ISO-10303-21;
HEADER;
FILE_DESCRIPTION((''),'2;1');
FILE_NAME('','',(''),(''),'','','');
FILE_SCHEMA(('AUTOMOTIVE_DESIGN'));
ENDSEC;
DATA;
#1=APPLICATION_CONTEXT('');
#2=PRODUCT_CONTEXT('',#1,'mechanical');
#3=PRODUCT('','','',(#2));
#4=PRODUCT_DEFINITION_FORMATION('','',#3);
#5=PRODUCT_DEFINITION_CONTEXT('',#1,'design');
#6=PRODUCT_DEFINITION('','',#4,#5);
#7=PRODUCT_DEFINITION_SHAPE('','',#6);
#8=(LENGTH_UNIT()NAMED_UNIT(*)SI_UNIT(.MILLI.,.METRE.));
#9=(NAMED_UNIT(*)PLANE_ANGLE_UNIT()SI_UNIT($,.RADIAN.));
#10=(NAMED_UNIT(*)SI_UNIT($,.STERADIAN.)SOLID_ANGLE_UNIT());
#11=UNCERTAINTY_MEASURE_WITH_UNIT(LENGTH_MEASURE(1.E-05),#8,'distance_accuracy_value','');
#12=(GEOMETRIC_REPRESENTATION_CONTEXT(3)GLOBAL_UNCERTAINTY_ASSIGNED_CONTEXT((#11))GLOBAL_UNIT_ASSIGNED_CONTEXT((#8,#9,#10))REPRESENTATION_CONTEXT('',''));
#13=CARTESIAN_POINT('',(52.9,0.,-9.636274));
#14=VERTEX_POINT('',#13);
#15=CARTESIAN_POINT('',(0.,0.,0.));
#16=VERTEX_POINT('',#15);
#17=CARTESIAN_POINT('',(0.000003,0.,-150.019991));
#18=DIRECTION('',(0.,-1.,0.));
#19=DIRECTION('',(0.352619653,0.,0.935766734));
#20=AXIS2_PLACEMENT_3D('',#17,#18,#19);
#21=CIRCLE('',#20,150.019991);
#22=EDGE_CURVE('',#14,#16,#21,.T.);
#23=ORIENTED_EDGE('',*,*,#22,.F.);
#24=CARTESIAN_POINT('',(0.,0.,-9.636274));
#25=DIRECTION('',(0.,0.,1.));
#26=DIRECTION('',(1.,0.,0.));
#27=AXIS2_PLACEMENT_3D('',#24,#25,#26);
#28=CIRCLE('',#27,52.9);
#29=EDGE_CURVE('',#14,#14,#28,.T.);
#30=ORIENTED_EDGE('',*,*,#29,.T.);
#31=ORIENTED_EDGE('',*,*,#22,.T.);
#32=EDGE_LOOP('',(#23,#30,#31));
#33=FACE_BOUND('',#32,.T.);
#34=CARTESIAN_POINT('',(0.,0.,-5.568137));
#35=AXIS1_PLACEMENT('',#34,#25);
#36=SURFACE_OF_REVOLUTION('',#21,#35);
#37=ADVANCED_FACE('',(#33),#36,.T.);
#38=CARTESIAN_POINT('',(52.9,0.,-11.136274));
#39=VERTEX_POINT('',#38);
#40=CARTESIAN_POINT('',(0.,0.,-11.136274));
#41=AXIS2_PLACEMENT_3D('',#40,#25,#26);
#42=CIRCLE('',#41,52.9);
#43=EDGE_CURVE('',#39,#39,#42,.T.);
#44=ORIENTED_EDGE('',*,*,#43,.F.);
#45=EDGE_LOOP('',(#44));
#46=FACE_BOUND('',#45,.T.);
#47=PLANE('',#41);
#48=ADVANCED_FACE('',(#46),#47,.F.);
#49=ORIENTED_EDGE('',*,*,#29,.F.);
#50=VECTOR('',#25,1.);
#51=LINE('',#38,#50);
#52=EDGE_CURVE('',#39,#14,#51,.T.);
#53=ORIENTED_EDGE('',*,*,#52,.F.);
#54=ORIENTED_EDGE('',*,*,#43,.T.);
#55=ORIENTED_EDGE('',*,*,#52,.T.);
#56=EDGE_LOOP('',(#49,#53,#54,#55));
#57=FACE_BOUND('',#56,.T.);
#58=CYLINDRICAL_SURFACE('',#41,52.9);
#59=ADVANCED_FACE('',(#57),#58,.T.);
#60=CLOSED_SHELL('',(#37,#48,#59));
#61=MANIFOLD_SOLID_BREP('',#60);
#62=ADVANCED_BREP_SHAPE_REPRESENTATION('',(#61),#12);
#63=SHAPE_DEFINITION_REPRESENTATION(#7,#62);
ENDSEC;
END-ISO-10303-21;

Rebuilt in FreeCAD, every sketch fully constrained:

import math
import FreeCAD as App
import Part
import Sketcher

doc = App.newDocument("Part")
params = doc.addObject("Spreadsheet::Sheet", "Params")
for row, (alias, value) in enumerate([
    ("sketch1_width", "52.9 mm"),
    ("sketch1_height", "1.5 mm"),
    ("revolution_angle", "360 deg"),
], start=1):
    params.set(f"A{row}", alias)
    params.set(f"B{row}", "=" + value)
    params.setAlias(f"B{row}", alias)

body = doc.addObject("PartDesign::Body", "Body")

# Sketch on XZ plane
sketch1 = doc.addObject("Sketcher::SketchObject", "Sketch")
body.addObject(sketch1)
sketch1.AttachmentSupport = (doc.XZ_Plane, [""])
sketch1.MapMode = "FlatFace"
sketch1.addGeometry(Part.LineSegment(App.Vector(52.9, -11.1, 0), App.Vector(52.9, -9.6, 0)), False)
sketch1.addGeometry(Part.ArcOfCircle(Part.Circle(App.Vector(0, -150, 0), App.Vector(0, 0, 1), 150), math.radians(69), math.radians(90)), False)
sketch1.addGeometry(Part.LineSegment(App.Vector(0, 0, 0), App.Vector(0, -11.1, 0)), False)
sketch1.addGeometry(Part.LineSegment(App.Vector(0, -11.1, 0), App.Vector(52.9, -11.1, 0)), False)
sketch1.addConstraint(Sketcher.Constraint("Coincident", 0, 2, 1, 1))
sketch1.addConstraint(Sketcher.Constraint("Coincident", 1, 2, 2, 1))
sketch1.addConstraint(Sketcher.Constraint("Coincident", 2, 2, 3, 1))
sketch1.addConstraint(Sketcher.Constraint("Coincident", 3, 2, 0, 1))
sketch1.addConstraint(Sketcher.Constraint("Vertical", 0))
sketch1.addConstraint(Sketcher.Constraint("Vertical", 2))
sketch1.addConstraint(Sketcher.Constraint("Horizontal", 3))
sketch1.addConstraint(Sketcher.Constraint("Coincident", 1, 2, -1, 1))
sketch1.addConstraint(Sketcher.Constraint("DistanceX", 3, 1, 3, 2, 52.9))
sketch1.addConstraint(Sketcher.Constraint("DistanceY", 0, 1, 0, 2, 1.5))
sketch1.addConstraint(Sketcher.Constraint("Radius", 1, 150.019991))
sketch1.addConstraint(Sketcher.Constraint("DistanceY", 2, 2, 2, 1, 11.136274))
sketch1.setExpression("Constraints[8]", "Params.sketch1_width")
sketch1.setExpression("Constraints[9]", "Params.sketch1_height")
revolution = doc.addObject("PartDesign::Revolution", "Revolution")
body.addObject(revolution)
revolution.Profile = sketch1
revolution.ReferenceAxis = (sketch1, ["V_Axis"])
revolution.setExpression("Angle", "Params.revolution_angle")

doc.recompute()
